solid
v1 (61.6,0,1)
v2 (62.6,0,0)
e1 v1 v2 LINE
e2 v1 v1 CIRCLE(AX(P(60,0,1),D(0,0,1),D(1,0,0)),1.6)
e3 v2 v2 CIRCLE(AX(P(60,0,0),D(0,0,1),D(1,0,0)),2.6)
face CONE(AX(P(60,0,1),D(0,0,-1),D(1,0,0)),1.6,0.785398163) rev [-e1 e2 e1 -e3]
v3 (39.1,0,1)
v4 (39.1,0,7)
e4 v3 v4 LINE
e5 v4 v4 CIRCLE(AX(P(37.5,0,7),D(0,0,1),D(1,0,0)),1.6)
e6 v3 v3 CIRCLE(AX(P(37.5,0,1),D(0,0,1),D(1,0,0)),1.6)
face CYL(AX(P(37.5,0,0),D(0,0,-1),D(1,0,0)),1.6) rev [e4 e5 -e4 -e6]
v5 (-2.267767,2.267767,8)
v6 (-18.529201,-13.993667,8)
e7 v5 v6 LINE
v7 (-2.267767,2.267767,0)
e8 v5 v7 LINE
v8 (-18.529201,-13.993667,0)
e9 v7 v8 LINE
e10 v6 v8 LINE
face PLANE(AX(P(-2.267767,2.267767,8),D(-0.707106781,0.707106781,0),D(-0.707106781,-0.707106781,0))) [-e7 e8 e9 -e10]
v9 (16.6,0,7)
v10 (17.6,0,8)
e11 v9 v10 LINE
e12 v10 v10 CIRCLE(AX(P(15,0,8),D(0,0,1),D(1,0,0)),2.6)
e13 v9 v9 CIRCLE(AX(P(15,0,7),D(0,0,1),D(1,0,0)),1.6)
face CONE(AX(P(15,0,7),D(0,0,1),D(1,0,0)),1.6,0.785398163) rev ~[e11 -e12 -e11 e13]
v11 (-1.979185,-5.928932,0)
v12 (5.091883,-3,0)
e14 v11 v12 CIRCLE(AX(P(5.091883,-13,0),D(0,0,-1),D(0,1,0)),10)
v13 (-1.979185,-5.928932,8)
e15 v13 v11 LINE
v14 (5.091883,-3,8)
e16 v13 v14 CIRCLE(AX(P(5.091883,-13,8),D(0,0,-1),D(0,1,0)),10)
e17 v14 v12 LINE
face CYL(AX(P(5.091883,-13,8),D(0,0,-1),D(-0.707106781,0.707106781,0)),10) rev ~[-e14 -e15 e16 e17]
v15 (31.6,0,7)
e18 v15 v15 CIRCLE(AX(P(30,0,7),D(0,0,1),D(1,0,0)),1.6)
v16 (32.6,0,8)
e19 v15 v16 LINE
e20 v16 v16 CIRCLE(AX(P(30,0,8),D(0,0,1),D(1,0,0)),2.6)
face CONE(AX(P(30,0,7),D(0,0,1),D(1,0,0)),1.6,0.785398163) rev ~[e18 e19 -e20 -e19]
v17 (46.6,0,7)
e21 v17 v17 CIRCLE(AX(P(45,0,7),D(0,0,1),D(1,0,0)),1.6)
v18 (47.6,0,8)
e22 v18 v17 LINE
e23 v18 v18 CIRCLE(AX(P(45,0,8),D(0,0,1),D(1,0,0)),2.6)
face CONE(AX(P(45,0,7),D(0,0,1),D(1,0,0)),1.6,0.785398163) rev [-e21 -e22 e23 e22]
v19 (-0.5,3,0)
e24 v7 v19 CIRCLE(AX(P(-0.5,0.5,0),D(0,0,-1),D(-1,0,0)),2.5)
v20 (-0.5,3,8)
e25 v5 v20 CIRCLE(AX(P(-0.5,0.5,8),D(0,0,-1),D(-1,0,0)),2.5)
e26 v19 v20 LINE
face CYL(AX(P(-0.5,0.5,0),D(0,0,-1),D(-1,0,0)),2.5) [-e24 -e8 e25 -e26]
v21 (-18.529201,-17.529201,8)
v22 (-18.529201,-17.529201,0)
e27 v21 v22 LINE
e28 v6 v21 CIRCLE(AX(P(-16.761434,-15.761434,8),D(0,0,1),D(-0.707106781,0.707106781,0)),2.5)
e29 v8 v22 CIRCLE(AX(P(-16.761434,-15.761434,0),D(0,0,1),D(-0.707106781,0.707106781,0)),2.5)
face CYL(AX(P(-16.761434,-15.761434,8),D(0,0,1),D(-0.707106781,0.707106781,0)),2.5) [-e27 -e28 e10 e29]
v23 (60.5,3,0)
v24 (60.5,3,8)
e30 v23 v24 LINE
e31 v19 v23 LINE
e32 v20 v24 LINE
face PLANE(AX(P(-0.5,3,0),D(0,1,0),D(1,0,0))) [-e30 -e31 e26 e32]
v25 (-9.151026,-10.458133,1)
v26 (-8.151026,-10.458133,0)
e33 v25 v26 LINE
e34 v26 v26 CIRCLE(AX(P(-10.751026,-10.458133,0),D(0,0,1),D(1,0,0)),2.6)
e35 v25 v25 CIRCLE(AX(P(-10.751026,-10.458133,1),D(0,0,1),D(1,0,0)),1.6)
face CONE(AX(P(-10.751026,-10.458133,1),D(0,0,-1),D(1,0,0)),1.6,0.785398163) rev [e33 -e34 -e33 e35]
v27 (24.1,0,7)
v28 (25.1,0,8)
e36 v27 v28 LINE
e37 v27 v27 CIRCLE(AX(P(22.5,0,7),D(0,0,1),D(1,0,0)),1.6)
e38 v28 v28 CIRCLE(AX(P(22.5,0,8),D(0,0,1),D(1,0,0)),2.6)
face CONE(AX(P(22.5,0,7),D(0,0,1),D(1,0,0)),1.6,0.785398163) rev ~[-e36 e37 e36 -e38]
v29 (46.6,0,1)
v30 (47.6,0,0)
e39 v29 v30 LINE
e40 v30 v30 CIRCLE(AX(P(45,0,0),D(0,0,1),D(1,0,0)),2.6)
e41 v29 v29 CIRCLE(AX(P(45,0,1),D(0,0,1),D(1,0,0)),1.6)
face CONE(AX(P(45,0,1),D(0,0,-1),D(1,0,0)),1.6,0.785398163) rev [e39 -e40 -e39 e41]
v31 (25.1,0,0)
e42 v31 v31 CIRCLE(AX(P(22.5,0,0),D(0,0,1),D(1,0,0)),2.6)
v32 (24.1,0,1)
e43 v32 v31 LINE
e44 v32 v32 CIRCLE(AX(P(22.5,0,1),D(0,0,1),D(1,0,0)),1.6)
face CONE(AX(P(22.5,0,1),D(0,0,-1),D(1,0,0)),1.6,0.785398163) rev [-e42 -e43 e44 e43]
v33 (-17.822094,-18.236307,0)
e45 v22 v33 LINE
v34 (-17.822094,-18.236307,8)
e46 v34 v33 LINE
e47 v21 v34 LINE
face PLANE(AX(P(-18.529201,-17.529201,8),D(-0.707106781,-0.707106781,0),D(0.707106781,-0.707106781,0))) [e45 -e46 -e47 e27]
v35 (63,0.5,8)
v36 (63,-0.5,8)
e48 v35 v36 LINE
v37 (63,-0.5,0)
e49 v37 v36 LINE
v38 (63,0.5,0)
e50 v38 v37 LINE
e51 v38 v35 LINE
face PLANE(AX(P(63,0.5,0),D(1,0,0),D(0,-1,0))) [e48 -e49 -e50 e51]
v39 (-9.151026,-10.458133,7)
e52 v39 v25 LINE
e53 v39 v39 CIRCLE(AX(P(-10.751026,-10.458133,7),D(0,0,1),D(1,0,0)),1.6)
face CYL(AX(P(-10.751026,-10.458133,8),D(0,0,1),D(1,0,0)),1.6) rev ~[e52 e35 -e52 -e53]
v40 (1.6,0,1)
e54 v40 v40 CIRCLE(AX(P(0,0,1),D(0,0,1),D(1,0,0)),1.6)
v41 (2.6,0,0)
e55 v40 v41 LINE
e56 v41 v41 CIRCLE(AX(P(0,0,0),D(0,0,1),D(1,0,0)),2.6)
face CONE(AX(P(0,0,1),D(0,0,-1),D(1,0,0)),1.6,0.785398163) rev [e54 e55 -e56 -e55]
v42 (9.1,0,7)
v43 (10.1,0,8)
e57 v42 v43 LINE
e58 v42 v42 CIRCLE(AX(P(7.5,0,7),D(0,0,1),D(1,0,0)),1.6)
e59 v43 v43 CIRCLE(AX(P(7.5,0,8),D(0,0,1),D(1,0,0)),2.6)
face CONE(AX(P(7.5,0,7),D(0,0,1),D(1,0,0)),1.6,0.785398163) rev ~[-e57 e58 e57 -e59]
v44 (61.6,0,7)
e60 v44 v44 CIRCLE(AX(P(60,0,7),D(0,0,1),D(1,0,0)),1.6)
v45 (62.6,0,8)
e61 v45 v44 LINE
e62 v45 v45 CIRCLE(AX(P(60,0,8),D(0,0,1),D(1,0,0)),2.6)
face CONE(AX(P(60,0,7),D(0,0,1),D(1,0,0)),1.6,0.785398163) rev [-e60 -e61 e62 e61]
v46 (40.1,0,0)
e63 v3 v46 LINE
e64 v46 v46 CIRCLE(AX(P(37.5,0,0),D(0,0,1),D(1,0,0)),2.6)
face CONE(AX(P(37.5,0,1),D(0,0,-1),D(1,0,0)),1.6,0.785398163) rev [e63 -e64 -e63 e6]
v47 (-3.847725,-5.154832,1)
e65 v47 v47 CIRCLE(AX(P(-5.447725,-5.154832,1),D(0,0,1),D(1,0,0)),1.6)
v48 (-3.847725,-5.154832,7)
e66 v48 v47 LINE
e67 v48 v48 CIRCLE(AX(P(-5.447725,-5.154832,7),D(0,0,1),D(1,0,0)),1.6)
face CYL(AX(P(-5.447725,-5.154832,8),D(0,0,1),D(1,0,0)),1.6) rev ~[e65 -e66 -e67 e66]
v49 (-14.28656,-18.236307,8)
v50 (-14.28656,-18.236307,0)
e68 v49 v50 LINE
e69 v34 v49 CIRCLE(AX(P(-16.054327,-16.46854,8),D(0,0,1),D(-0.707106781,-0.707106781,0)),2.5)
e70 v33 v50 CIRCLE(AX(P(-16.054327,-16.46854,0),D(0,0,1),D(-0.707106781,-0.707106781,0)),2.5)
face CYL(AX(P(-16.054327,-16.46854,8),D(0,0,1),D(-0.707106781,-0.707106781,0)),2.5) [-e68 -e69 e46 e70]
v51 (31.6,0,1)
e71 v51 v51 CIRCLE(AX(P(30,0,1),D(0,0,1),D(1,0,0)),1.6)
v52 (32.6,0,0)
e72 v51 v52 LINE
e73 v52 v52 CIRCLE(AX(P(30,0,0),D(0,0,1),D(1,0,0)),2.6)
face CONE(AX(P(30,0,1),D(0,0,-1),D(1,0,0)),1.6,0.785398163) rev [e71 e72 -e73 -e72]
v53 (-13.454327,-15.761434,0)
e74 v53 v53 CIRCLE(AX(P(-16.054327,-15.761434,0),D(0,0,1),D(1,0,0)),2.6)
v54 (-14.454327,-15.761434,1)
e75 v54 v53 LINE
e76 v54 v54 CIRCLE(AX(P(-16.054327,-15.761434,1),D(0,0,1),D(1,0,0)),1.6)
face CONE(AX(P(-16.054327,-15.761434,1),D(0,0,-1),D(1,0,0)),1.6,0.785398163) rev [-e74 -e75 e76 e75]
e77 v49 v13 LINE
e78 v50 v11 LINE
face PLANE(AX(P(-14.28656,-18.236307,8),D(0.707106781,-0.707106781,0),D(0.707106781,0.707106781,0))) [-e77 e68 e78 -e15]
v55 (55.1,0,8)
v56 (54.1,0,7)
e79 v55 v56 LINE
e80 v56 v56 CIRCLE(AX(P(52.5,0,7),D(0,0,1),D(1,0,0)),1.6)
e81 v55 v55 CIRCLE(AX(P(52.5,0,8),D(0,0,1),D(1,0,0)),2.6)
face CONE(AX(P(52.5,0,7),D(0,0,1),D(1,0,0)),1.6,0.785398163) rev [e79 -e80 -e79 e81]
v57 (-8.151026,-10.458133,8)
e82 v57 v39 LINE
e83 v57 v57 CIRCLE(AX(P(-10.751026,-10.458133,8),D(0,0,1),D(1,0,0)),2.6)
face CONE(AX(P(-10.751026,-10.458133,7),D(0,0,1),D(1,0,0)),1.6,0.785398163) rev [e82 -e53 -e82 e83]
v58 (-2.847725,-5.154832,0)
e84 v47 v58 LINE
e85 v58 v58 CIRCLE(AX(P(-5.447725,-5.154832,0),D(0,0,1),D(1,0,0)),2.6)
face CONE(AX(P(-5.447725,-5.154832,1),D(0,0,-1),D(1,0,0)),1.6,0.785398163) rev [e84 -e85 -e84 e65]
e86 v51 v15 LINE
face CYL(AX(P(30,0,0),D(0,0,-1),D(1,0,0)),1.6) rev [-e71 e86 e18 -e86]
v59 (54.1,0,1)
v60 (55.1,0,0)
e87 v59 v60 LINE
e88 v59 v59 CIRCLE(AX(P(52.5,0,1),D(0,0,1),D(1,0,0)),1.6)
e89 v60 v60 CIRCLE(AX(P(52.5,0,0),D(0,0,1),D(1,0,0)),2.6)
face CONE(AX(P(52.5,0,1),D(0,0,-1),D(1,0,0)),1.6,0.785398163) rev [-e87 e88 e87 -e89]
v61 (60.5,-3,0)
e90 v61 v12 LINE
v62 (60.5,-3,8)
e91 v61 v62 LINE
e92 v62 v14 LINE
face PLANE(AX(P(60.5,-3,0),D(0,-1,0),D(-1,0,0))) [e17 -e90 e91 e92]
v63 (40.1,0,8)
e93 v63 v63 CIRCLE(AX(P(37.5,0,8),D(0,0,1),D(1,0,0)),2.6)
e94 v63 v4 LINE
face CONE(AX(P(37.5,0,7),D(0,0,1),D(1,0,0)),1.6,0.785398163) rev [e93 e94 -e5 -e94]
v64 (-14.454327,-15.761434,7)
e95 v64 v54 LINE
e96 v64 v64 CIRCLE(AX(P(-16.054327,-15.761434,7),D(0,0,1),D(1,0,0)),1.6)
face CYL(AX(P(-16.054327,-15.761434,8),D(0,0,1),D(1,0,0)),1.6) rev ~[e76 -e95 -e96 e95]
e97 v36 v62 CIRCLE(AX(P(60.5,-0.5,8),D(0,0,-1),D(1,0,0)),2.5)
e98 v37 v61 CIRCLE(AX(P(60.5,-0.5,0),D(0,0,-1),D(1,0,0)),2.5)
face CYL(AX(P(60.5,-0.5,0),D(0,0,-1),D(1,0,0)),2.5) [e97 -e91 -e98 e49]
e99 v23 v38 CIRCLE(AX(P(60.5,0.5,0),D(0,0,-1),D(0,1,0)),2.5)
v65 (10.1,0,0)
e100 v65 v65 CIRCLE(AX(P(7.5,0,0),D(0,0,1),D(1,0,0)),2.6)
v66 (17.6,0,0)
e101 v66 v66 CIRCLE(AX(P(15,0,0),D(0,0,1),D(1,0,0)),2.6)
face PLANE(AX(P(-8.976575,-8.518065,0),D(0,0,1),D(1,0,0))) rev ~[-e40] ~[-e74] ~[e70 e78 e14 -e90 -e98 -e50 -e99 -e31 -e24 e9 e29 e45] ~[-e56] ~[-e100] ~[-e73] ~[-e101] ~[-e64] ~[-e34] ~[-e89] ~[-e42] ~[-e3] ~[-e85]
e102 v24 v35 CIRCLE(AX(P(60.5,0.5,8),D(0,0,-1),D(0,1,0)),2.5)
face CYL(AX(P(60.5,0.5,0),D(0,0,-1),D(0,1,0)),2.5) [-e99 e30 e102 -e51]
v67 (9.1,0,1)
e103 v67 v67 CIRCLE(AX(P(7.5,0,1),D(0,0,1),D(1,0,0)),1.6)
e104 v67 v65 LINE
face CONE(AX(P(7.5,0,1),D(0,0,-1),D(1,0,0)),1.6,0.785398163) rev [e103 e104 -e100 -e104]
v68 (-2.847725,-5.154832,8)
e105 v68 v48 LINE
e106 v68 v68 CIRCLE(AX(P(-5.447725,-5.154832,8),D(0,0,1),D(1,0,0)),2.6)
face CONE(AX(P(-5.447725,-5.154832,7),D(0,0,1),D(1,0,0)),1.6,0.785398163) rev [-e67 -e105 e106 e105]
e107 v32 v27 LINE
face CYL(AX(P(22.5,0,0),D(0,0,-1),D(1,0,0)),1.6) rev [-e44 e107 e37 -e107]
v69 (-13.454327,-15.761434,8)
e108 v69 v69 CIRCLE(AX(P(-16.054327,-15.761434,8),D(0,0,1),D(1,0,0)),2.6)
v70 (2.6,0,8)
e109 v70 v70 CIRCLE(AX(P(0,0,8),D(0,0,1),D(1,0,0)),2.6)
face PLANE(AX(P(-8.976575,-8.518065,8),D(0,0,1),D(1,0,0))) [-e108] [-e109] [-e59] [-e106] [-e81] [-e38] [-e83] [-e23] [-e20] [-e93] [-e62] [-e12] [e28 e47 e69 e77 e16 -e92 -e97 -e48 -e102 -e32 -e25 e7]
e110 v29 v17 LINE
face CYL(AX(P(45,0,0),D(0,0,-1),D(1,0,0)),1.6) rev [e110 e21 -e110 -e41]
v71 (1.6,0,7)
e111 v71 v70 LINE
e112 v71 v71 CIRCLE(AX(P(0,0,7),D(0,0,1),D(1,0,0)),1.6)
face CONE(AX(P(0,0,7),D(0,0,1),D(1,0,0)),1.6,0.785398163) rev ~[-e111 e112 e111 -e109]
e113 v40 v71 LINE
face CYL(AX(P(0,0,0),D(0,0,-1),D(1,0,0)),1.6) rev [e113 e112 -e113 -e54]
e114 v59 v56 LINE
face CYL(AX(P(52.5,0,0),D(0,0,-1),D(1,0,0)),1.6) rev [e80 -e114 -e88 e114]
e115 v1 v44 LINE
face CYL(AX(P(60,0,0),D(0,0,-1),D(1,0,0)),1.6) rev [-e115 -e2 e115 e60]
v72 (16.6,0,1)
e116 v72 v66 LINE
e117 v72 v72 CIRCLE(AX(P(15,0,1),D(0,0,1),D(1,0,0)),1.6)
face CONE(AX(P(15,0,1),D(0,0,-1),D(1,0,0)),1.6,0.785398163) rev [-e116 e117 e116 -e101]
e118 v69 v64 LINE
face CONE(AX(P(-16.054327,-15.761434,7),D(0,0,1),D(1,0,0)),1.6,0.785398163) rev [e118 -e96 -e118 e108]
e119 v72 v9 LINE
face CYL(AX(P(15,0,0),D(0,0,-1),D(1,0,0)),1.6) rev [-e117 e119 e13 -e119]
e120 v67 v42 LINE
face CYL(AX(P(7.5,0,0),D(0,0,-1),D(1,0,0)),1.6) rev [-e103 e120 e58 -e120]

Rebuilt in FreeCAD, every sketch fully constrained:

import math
import FreeCAD as App
import Part
import Sketcher


def edges_at(feature, points):
    """Names of the edges that pass closest to the given points."""
    edges = feature.Shape.Edges
    near = lambda p: min(range(len(edges)), key=lambda i: edges[i].distToShape(Part.Vertex(*p))[0])
    return sorted({f"Edge{near(p) + 1}" for p in points})

doc = App.newDocument("Part")
body = doc.addObject("PartDesign::Body", "Body")

# Sketch on XY plane
sketch1 = body.newObject("Sketcher::SketchObject", "Sketch")
sketch1.AttachmentSupport = (doc.getObject("XY_Plane"), [""])
sketch1.MapMode = "FlatFace"
sketch1.addGeometry([
    Part.LineSegment(App.Vector(60.5, 3, 0), App.Vector(-0.5, 3, 0)),  # 0
    Part.ArcOfCircle(Part.Circle(App.Vector(-0.5, 0.5, 0), App.Vector(0, 0, 1), 2.5), math.radians(90), math.radians(180)),  # 1
    Part.LineSegment(App.Vector(-3, 0.5, 0), App.Vector(-3, -0.5, 0)),  # 2
    Part.ArcOfCircle(Part.Circle(App.Vector(-0.5, -0.5, 0), App.Vector(0, 0, 1), 2.5), math.radians(180), math.radians(270)),  # 3
    Part.LineSegment(App.Vector(-0.5, -3, 0), App.Vector(60.5, -3, 0)),  # 4
    Part.ArcOfCircle(Part.Circle(App.Vector(60.5, -0.5, 0), App.Vector(0, 0, 1), 2.5), math.radians(-90), math.radians(0)),  # 5
    Part.LineSegment(App.Vector(63, -0.5, 0), App.Vector(63, 0.5, 0)),  # 6
    Part.ArcOfCircle(Part.Circle(App.Vector(60.5, 0.5, 0), App.Vector(0, 0, 1), 2.5), math.radians(0), math.radians(90)),  # 7
    Part.Circle(App.Vector(60, 0, 0), App.Vector(0, 0, 1), 1.6),  # 8
    Part.Circle(App.Vector(52.5, 0, 0), App.Vector(0, 0, 1), 1.6),  # 9
    Part.Circle(App.Vector(45, 0, 0), App.Vector(0, 0, 1), 1.6),  # 10
    Part.Circle(App.Vector(37.5, 0, 0), App.Vector(0, 0, 1), 1.6),  # 11
    Part.Circle(App.Vector(30, 0, 0), App.Vector(0, 0, 1), 1.6),  # 12
    Part.Circle(App.Vector(22.5, 0, 0), App.Vector(0, 0, 1), 1.6),  # 13
    Part.Circle(App.Vector(15, 0, 0), App.Vector(0, 0, 1), 1.6),  # 14
    Part.Circle(App.Vector(7.5, 0, 0), App.Vector(0, 0, 1), 1.6),  # 15
    Part.Circle(App.Vector(0, 0, 0), App.Vector(0, 0, 1), 1.6),  # 16
], False)
sketch1.addConstraint([
    Sketcher.Constraint("Tangent", 0, 2, 1, 1),
    Sketcher.Constraint("Tangent", 1, 2, 2, 1),
    Sketcher.Constraint("Tangent", 2, 2, 3, 1),
    Sketcher.Constraint("Tangent", 3, 2, 4, 1),
    Sketcher.Constraint("Tangent", 4, 2, 5, 1),
    Sketcher.Constraint("Tangent", 5, 2, 6, 1),
    Sketcher.Constraint("Tangent", 6, 2, 7, 1),
    Sketcher.Constraint("Tangent", 7, 2, 0, 1),
    Sketcher.Constraint("Horizontal", 0),
    Sketcher.Constraint("Vertical", 2),
    Sketcher.Constraint("Horizontal", 4),
    Sketcher.Constraint("Vertical", 6),
    Sketcher.Constraint("Coincident", 16, 3, -1, 1),
    Sketcher.Constraint("Equal", 1, 3),
    Sketcher.Constraint("Equal", 3, 5),
    Sketcher.Constraint("Equal", 5, 7),
    Sketcher.Constraint("Equal", 8, 9),
    Sketcher.Constraint("Equal", 9, 10),
    Sketcher.Constraint("Equal", 10, 11),
    Sketcher.Constraint("Equal", 11, 12),
    Sketcher.Constraint("Equal", 12, 13),
    Sketcher.Constraint("Equal", 13, 14),
    Sketcher.Constraint("Equal", 14, 15),
    Sketcher.Constraint("Equal", 15, 16),
    Sketcher.Constraint("PointOnObject", 8, 3, -1),
    Sketcher.Constraint("PointOnObject", 9, 3, -1),
    Sketcher.Constraint("PointOnObject", 10, 3, -1),
    Sketcher.Constraint("PointOnObject", 11, 3, -1),
    Sketcher.Constraint("PointOnObject", 12, 3, -1),
    Sketcher.Constraint("PointOnObject", 13, 3, -1),
    Sketcher.Constraint("PointOnObject", 14, 3, -1),
    Sketcher.Constraint("PointOnObject", 15, 3, -1),
    Sketcher.Constraint("Diameter", 8, 3.2),
    Sketcher.Constraint("Radius", 1, 2.5),
    Sketcher.Constraint("DistanceX", 0, 2, 0, 1, 61.0),
    Sketcher.Constraint("DistanceY", 2, 2, 2, 1, 1.0),
    Sketcher.Constraint("DistanceX", -1, 1, 8, 3, 60.0),
    Sketcher.Constraint("DistanceX", -1, 1, 10, 3, 45.0),
    Sketcher.Constraint("DistanceX", -1, 1, 12, 3, 30.0),
    Sketcher.Constraint("DistanceX", -1, 1, 14, 3, 15.0),
    Sketcher.Constraint("DistanceY", -1, 1, 0, 2, 3.0),
    Sketcher.Constraint("DistanceX", 1, 2, -1, 1, 3.0),
    Sketcher.Constraint("DistanceX", 9, 3, 5, 3, 8.0),
    Sketcher.Constraint("DistanceX", 11, 3, 9, 3, 15.0),
    Sketcher.Constraint("DistanceX", 13, 3, 11, 3, 15.0),
    Sketcher.Constraint("DistanceX", 1, 3, 15, 3, 8.0),
])
pad1 = body.newObject("PartDesign::Pad", "Pad")
pad1.Profile = sketch1
pad1.Length = 8
doc.recompute()

chamfer = body.newObject("PartDesign::Chamfer", "Chamfer")
chamfer.Base = (pad1, edges_at(pad1, [
    (-1.6, 0, 0),
    (-1.6, 0, 8),
    (5.9, 0, 0),
    (5.9, 0, 8),
    (13.4, 0, 0),
    (13.4, 0, 8),
    (20.9, 0, 0),
    (20.9, 0, 8),
    (28.4, 0, 0),
    (28.4, 0, 8),
]))
chamfer.Size = 1

# Sketch on XY plane
sketch2 = body.newObject("Sketcher::SketchObject", "Sketch001")
sketch2.AttachmentSupport = (doc.getObject("XY_Plane"), [""])
sketch2.MapMode = "FlatFace"
sketch2.AttachmentOffset = App.Placement(App.Vector(0, 0, 8), App.Rotation())
sketch2.addGeometry([
    Part.ArcOfCircle(Part.Circle(App.Vector(-0.5, 0.5, 0), App.Vector(0, 0, 1), 2.5), math.radians(135), math.radians(180)),  # 0
    Part.LineSegment(App.Vector(-2.3, 2.3, 0), App.Vector(-18.5, -14, 0)),  # 1
    Part.ArcOfCircle(Part.Circle(App.Vector(-16.8, -15.8, 0), App.Vector(0, 0, 1), 2.5), math.radians(135), math.radians(225)),  # 2
    Part.LineSegment(App.Vector(-18.5, -17.5, 0), App.Vector(-17.8, -18.2, 0)),  # 3
    Part.ArcOfCircle(Part.Circle(App.Vector(-16.1, -16.5, 0), App.Vector(0, 0, 1), 2.5), math.radians(-135), math.radians(-45)),  # 4
    Part.LineSegment(App.Vector(-14.3, -18.2, 0), App.Vector(0.9, -3, 0)),  # 5
    Part.LineSegment(App.Vector(0.9, -3, 0), App.Vector(-0.5, -3, 0)),  # 6
    Part.ArcOfCircle(Part.Circle(App.Vector(-0.5, -0.5, 0), App.Vector(0, 0, 1), 2.5), math.radians(180), math.radians(270)),  # 7
    Part.LineSegment(App.Vector(-3, -0.5, 0), App.Vector(-3, 0.5, 0)),  # 8
    Part.Circle(App.Vector(-16.1, -15.8, 0), App.Vector(0, 0, 1), 1.6),  # 9
    Part.Circle(App.Vector(-10.8, -10.5, 0), App.Vector(0, 0, 1), 1.6),  # 10
    Part.Circle(App.Vector(-5.4, -5.2, 0), App.Vector(0, 0, 1), 1.6),  # 11
], False)
sketch2.addConstraint([
    Sketcher.Constraint("Tangent", 0, 1, 1, 1),
    Sketcher.Constraint("Tangent", 1, 2, 2, 1),
    Sketcher.Constraint("Tangent", 2, 2, 3, 1),
    Sketcher.Constraint("Tangent", 3, 2, 4, 1),
    Sketcher.Constraint("Tangent", 4, 2, 5, 1),
    Sketcher.Constraint("Coincident", 5, 2, 6, 1),
    Sketcher.Constraint("Tangent", 6, 2, 7, 2),
    Sketcher.Constraint("Tangent", 7, 1, 8, 1),
    Sketcher.Constraint("Tangent", 8, 2, 0, 2),
    Sketcher.Constraint("Horizontal", 6),
    Sketcher.Constraint("Vertical", 8),
    Sketcher.Constraint("Equal", 0, 2),
    Sketcher.Constraint("Equal", 2, 4),
    Sketcher.Constraint("Equal", 4, 7),
    Sketcher.Constraint("Equal", 9, 10),
    Sketcher.Constraint("Equal", 10, 11),
    Sketcher.Constraint("Perpendicular", 1, 3),
    Sketcher.Constraint("Perpendicular", 3, 5),
    Sketcher.Constraint("Horizontal", 2, 3, 9, 3),
    Sketcher.Constraint("Horizontal", 3, 2, 4, 2),
    Sketcher.Constraint("Vertical", 4, 3, 9, 3),
    Sketcher.Constraint("Diameter", 9, 3.2),
    Sketcher.Constraint("Radius", 0, 2.5),
    Sketcher.Constraint("DistanceY", 8, 1, 8, 2, 1.0),
    Sketcher.Constraint("Distance", 3, 1.0),
    Sketcher.Constraint("DistanceY", 5, 2, -1, 1, 3.0),
    Sketcher.Constraint("DistanceX", 7, 1, -1, 1, 3.0),
    Sketcher.Constraint("DistanceX", 1, 2, -1, 1, 18.529201),
    Sketcher.Constraint("DistanceX", 9, 3, 10, 3, 5.303301),
    Sketcher.Constraint("DistanceY", 9, 3, 10, 3, 5.303301),
    Sketcher.Constraint("DistanceX", 10, 3, 11, 3, 5.303301),
    Sketcher.Constraint("DistanceY", 10, 3, 11, 3, 5.303301),
])
pad2 = body.newObject("PartDesign::Pad", "Pad001")
pad2.Profile = sketch2
pad2.Length = 8
pad2.Reversed = True
doc.recompute()

fillet = body.newObject("PartDesign::Fillet", "Fillet")
fillet.Base = (pad2, edges_at(pad2, [(0.95, -3, 4)]))
fillet.Radius = 10
doc.recompute()

chamfer2 = body.newObject("PartDesign::Chamfer", "Chamfer001")
chamfer2.Base = (fillet, edges_at(fillet, [
    (-17.654, -15.761, 0),
    (-17.654, -15.761, 8),
    (-12.351, -10.458, 8),
    (-7.048, -5.155, 8),
    (-7.048, -5.155, 0),
    (-12.351, -10.458, 0),
]))
chamfer2.Size = 1
doc.recompute()

chamfer3 = body.newObject("PartDesign::Chamfer", "Chamfer002")
chamfer3.Base = (chamfer2, edges_at(chamfer2, [
    (35.9, 0, 0),
    (35.9, 0, 8),
    (43.4, 0, 0),
    (43.4, 0, 8),
]))
chamfer3.Size = 1
doc.recompute()

chamfer4 = body.newObject("PartDesign::Chamfer", "Chamfer003")
chamfer4.Base = (chamfer3, edges_at(chamfer3, [
    (50.9, 0, 0),
    (50.9, 0, 8),
    (58.4, 0, 0),
    (58.4, 0, 8),
]))
chamfer4.Size = 1

doc.recompute()
